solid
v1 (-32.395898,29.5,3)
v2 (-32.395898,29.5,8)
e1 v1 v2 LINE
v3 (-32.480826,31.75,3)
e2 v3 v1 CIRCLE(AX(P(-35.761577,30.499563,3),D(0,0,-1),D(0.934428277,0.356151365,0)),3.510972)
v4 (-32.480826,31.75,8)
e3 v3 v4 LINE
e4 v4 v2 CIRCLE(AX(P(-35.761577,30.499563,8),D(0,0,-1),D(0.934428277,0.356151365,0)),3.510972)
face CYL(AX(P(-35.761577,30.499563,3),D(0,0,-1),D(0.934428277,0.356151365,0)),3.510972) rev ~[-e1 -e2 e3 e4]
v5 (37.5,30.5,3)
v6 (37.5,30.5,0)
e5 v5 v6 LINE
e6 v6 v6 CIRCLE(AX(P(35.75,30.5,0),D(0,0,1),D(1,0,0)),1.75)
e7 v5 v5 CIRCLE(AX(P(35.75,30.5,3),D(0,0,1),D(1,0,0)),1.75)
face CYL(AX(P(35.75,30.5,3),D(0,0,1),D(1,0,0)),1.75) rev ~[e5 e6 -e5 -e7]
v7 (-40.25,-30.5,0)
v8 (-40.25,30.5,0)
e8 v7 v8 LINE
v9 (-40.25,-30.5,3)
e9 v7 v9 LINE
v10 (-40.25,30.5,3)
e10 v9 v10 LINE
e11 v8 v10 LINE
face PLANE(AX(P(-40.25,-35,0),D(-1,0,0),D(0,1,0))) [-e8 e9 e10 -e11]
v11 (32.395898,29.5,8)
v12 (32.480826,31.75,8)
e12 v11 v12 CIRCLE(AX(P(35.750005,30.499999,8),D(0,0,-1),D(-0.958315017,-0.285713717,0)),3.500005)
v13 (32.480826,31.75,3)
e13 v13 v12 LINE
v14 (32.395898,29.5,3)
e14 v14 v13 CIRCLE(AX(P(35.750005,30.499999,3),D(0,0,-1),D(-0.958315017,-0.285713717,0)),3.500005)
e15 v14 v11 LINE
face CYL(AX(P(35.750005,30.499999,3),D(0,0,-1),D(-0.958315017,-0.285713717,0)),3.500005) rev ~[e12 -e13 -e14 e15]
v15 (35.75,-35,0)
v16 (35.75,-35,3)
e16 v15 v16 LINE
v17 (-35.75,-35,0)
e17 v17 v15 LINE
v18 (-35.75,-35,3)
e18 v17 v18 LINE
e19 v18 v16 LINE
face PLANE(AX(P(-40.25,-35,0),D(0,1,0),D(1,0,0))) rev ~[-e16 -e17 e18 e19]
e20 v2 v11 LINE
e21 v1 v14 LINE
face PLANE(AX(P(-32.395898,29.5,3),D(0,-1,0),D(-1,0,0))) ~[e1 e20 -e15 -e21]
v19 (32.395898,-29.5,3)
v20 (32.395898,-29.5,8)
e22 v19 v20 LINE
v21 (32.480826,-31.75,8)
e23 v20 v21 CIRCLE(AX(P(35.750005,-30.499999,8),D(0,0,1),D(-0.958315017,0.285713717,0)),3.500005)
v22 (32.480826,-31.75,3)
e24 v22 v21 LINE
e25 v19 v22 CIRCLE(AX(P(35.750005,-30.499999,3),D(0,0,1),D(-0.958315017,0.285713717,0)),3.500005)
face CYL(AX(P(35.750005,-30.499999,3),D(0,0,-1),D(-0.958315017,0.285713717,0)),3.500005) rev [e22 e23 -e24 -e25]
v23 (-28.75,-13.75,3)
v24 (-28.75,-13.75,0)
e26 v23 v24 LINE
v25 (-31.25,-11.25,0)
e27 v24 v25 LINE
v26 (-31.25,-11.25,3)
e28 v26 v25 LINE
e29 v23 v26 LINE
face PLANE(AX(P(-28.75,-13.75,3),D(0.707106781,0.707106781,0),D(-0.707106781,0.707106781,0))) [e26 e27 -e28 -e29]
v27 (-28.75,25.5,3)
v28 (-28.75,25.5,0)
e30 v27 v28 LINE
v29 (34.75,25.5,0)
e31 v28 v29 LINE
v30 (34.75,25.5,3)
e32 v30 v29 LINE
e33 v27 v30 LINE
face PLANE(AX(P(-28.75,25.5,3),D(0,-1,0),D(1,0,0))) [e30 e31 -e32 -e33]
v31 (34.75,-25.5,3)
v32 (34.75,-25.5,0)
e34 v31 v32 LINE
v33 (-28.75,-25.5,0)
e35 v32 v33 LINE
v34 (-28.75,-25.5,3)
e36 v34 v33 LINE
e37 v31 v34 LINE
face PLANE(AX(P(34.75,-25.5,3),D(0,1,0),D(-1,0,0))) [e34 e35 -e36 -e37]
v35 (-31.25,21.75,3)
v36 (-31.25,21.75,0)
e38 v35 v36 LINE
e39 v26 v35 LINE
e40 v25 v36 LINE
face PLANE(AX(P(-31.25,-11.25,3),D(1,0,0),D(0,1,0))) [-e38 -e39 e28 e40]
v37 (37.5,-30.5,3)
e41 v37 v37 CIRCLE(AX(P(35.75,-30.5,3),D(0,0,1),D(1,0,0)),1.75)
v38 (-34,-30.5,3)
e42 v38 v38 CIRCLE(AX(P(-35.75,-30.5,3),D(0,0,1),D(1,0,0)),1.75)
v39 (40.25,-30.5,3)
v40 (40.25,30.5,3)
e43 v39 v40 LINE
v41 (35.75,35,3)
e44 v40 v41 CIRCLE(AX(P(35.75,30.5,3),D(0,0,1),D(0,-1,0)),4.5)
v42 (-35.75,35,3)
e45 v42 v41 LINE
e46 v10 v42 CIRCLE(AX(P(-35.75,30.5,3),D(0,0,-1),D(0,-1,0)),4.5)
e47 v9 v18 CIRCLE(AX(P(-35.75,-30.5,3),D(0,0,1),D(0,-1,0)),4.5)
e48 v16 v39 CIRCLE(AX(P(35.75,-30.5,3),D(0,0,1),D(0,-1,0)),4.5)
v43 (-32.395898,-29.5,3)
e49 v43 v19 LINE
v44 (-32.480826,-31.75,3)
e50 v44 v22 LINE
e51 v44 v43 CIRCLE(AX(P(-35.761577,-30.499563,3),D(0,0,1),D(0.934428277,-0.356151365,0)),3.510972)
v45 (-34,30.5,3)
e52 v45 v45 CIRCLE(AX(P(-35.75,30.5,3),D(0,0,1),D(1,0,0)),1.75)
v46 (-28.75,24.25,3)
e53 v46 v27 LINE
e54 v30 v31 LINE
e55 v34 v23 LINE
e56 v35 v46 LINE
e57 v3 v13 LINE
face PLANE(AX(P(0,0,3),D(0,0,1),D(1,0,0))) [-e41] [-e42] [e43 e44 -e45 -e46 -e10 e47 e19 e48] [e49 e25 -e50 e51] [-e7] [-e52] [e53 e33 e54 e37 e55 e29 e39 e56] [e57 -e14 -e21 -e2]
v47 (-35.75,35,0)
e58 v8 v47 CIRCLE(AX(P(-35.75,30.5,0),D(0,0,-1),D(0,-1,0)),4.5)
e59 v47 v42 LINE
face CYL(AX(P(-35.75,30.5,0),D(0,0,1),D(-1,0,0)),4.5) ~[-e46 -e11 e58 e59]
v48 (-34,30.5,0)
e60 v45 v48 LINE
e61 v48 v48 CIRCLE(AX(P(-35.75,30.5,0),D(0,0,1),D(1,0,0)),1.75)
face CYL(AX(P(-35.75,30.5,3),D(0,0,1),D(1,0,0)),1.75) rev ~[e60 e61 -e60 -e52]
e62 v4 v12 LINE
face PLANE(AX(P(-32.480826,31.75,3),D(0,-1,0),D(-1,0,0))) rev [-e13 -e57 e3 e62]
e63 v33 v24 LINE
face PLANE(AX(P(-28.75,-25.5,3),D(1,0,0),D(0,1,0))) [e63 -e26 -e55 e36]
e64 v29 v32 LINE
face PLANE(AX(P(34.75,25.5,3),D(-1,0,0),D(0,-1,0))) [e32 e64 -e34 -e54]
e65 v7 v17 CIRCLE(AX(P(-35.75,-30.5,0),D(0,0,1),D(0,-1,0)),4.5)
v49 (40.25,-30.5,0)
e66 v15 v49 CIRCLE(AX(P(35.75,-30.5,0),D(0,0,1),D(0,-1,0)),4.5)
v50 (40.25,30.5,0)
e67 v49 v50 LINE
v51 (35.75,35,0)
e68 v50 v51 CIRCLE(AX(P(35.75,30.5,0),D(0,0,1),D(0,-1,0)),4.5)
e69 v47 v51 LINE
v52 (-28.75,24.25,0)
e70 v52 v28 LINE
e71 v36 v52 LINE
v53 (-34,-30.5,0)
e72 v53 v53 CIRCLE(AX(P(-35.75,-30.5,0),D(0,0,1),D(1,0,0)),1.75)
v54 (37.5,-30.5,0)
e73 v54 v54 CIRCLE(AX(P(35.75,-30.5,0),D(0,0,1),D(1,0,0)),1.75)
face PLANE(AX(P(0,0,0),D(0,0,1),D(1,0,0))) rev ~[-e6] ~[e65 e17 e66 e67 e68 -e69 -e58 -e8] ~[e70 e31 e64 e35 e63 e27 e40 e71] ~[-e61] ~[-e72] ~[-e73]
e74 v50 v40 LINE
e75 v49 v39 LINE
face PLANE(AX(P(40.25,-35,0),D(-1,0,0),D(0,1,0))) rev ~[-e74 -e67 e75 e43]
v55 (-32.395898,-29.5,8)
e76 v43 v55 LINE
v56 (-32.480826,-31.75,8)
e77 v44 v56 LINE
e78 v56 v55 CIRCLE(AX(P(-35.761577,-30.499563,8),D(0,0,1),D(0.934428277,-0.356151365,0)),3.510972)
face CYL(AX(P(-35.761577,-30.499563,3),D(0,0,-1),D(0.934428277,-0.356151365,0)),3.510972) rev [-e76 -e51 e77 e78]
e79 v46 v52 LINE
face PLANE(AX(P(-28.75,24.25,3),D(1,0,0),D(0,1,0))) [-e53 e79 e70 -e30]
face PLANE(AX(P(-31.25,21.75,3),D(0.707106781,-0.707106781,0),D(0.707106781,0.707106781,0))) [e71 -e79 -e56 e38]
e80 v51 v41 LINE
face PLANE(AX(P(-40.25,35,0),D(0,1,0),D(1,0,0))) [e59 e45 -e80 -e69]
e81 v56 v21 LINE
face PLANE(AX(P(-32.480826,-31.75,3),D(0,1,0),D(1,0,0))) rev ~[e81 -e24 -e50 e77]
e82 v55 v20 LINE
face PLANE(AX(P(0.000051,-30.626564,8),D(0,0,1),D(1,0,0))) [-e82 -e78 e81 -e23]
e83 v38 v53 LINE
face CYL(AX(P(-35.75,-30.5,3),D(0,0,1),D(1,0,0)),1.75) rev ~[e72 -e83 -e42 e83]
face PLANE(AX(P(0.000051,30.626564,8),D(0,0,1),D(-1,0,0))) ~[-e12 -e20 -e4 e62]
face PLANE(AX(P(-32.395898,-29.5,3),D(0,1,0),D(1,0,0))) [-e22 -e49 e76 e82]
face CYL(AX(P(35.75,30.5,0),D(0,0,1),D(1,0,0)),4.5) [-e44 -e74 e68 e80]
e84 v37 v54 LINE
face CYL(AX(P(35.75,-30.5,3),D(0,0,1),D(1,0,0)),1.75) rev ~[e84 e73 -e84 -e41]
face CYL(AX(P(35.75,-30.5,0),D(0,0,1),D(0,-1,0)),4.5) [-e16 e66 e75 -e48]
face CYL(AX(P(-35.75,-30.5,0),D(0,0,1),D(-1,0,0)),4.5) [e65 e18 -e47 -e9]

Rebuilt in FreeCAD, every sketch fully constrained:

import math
import FreeCAD as App
import Part
import Sketcher
Q = App.Units.Quantity


def edges_at(feature, points):
    """Names of the edges that pass closest to the given points."""
    edges = feature.Shape.Edges
    near = lambda p: min(range(len(edges)), key=lambda i: edges[i].distToShape(Part.Vertex(*p))[0])
    return sorted({f"Edge{near(p) + 1}" for p in points})


def add_polygon(sketch, points):
    """Adds a closed chain of lines whose ends are joined by coincident constraints."""
    first, n = sketch.GeometryCount, len(points)
    for a, b in zip(points, points[1:] + points[:1]):
        sketch.addGeometry(Part.LineSegment(App.Vector(*a, 0), App.Vector(*b, 0)), False)
    for i in range(n):
        sketch.addConstraint(Sketcher.Constraint("Coincident", first + i, 2, first + (i + 1) % n, 1))

doc = App.newDocument("Part")
body = doc.addObject("PartDesign::Body", "Body")

# Sketch on XY plane
sketch1 = body.newObject("Sketcher::SketchObject", "Sketch")
sketch1.AttachmentSupport = (doc.getObject("XY_Plane"), [""])
sketch1.MapMode = "FlatFace"
add_polygon(sketch1, [(-40, 35), (-40, -35), (40, -35), (40, 35)])  # lines 0-3
sketch1.addConstraint(Sketcher.Constraint("Vertical", 0))
sketch1.addConstraint(Sketcher.Constraint("Horizontal", 1))
sketch1.addConstraint(Sketcher.Constraint("Vertical", 2))
sketch1.addConstraint(Sketcher.Constraint("Horizontal", 3))
sketch1.addConstraint(Sketcher.Constraint("Symmetric", 0, 2, 2, 2, -1, 1))
sketch1.addConstraint(Sketcher.Constraint("DistanceY", 0, 2, 0, 1, Q("70 mm")))
sketch1.addConstraint(Sketcher.Constraint("DistanceX", 1, 1, 1, 2, Q("80.5 mm")))
pad1 = body.newObject("PartDesign::Pad", "Pad")
pad1.Profile = sketch1
pad1.Length = 3
doc.recompute()

fillet = body.newObject("PartDesign::Fillet", "Fillet")
fillet.Base = (pad1, edges_at(pad1, [
    (-40.25, -35, 1.5),
    (40.25, -35, 1.5),
    (40.25, 35, 1.5),
    (-40.25, 35, 1.5),
]))
fillet.Radius = 4.5

# Sketch on XY plane
sketch2 = body.newObject("Sketcher::SketchObject", "Sketch001")
sketch2.AttachmentSupport = (doc.getObject("XY_Plane"), [""])
sketch2.MapMode = "FlatFace"
sketch2.AttachmentOffset = App.Placement(App.Vector(0, 0, 3), App.Rotation())
sketch2.addGeometry(Part.Circle(App.Vector(-35.8, 30.5, 0), App.Vector(0, 0, 1), 1.8), False)
sketch2.addGeometry(Part.Circle(App.Vector(35.8, 30.5, 0), App.Vector(0, 0, 1), 1.8), False)
sketch2.addGeometry(Part.Circle(App.Vector(-35.8, -30.5, 0), App.Vector(0, 0, 1), 1.8), False)
sketch2.addGeometry(Part.Circle(App.Vector(35.8, -30.5, 0), App.Vector(0, 0, 1), 1.8), False)
sketch2.addConstraint(Sketcher.Constraint("Equal", 0, 1))
sketch2.addConstraint(Sketcher.Constraint("Equal", 1, 2))
sketch2.addConstraint(Sketcher.Constraint("Equal", 2, 3))
sketch2.addConstraint(Sketcher.Constraint("Symmetric", 1, 3, 2, 3, -1, 1))
sketch2.addConstraint(Sketcher.Constraint("Symmetric", 0, 3, 3, 3, -1, 1))
sketch2.addConstraint(Sketcher.Constraint("Symmetric", 0, 3, 1, 3, -2))
sketch2.addConstraint(Sketcher.Constraint("Diameter", 0, Q("3.5 mm")))
sketch2.addConstraint(Sketcher.Constraint("DistanceY", 2, 3, 0, 3, Q("61 mm")))
sketch2.addConstraint(Sketcher.Constraint("DistanceX", 0, 3, 1, 3, Q("71.5 mm")))
pocket1 = body.newObject("PartDesign::Pocket", "Pocket")
pocket1.Profile = sketch2
pocket1.Type = "ThroughAll"

# Sketch on XY plane
sketch3 = body.newObject("Sketcher::SketchObject", "Sketch002")
sketch3.AttachmentSupport = (doc.getObject("XY_Plane"), [""])
sketch3.MapMode = "FlatFace"
sketch3.AttachmentOffset = App.Placement(App.Vector(0, 0, 3), App.Rotation())
sketch3.addGeometry(Part.LineSegment(App.Vector(-32.5, -31.8, 0), App.Vector(32.5, -31.8, 0)), False)
sketch3.addGeometry(Part.ArcOfCircle(Part.Circle(App.Vector(35.8, -30.5, 0), App.Vector(0, 0, 1), 3.5), math.radians(163), math.radians(201)), False)
sketch3.addGeometry(Part.LineSegment(App.Vector(32.4, -29.5, 0), App.Vector(-32.4, -29.5, 0)), False)
sketch3.addGeometry(Part.ArcOfCircle(Part.Circle(App.Vector(-35.8, -30.5, 0), App.Vector(0, 0, 1), 3.5), math.radians(-21), math.radians(17)), False)
sketch3.addConstraint(Sketcher.Constraint("Coincident", 0, 2, 1, 2))
sketch3.addConstraint(Sketcher.Constraint("Coincident", 1, 1, 2, 1))
sketch3.addConstraint(Sketcher.Constraint("Coincident", 2, 2, 3, 2))
sketch3.addConstraint(Sketcher.Constraint("Coincident", 3, 1, 0, 1))
sketch3.addConstraint(Sketcher.Constraint("Horizontal", 0))
sketch3.addConstraint(Sketcher.Constraint("Horizontal", 2))
sketch3.addConstraint(Sketcher.Constraint("DistanceY", 1, 3, 1, 1, Q("0.999999 mm")))
sketch3.addConstraint(Sketcher.Constraint("DistanceY", 1, 3, -1, 1, Q("30.499999 mm")))
sketch3.addConstraint(Sketcher.Constraint("DistanceY", 0, 2, -1, 1, Q("31.75 mm")))
sketch3.addConstraint(Sketcher.Constraint("Radius", 3, Q("3.510972 mm")))
sketch3.addConstraint(Sketcher.Constraint("Radius", 1, Q("3.500005 mm")))
sketch3.addConstraint(Sketcher.Constraint("DistanceX", 0, 1, 0, 2, Q("64.961652 mm")))
sketch3.addConstraint(Sketcher.Constraint("DistanceX", -1, 1, 1, 1, Q("32.395898 mm")))
sketch3.addConstraint(Sketcher.Constraint("DistanceX", 2, 2, -1, 1, Q("32.395898 mm")))
pad2 = body.newObject("PartDesign::Pad", "Pad001")
pad2.Profile = sketch3
pad2.Length = 5
doc.recompute()

mirrored = body.newObject("PartDesign::Mirrored", "Mirrored")
mirrored.Originals = [pad2]
mirrored.MirrorPlane = (doc.getObject("XZ_Plane"), [""])
body.Tip = mirrored

# Sketch on XY plane
sketch4 = body.newObject("Sketcher::SketchObject", "Sketch003")
sketch4.AttachmentSupport = (doc.getObject("XY_Plane"), [""])
sketch4.MapMode = "FlatFace"
sketch4.AttachmentOffset = App.Placement(App.Vector(0, 0, 3), App.Rotation())
add_polygon(sketch4, [(34.8, -25.5), (34.8, 25.5), (-28.8, 25.5), (-28.8, 24.2), (-31.2, 21.8), (-31.2, -11.2), (-28.8, -13.8), (-28.8, -25.5)])  # lines 0-7
sketch4.addConstraint(Sketcher.Constraint("Vertical", 0))
sketch4.addConstraint(Sketcher.Constraint("Horizontal", 1))
sketch4.addConstraint(Sketcher.Constraint("Vertical", 2))
sketch4.addConstraint(Sketcher.Constraint("Vertical", 4))
sketch4.addConstraint(Sketcher.Constraint("Vertical", 6))
sketch4.addConstraint(Sketcher.Constraint("Horizontal", 7))
sketch4.addConstraint(Sketcher.Constraint("Symmetric", 1, 2, 6, 2, -1))
sketch4.addConstraint(Sketcher.Constraint("Perpendicular", 3, 5))
sketch4.addConstraint(Sketcher.Constraint("Equal", 3, 5))
sketch4.addConstraint(Sketcher.Constraint("DistanceY", 0, 1, 0, 2, Q("51 mm")))
sketch4.addConstraint(Sketcher.Constraint("DistanceY", 4, 2, 4, 1, Q("33 mm")))
sketch4.addConstraint(Sketcher.Constraint("DistanceX", 1, 2, 1, 1, Q("63.5 mm")))
sketch4.addConstraint(Sketcher.Constraint("DistanceX", 3, 2, 0, 2, Q("66 mm")))
sketch4.addConstraint(Sketcher.Constraint("DistanceY", 2, 2, 2, 1, Q("1.25 mm")))
sketch4.addConstraint(Sketcher.Constraint("DistanceX", -1, 1, 0, 2, Q("34.75 mm")))
pocket2 = body.newObject("PartDesign::Pocket", "Pocket001")
pocket2.Profile = sketch4
pocket2.Type = "ThroughAll"

doc.recompute()
